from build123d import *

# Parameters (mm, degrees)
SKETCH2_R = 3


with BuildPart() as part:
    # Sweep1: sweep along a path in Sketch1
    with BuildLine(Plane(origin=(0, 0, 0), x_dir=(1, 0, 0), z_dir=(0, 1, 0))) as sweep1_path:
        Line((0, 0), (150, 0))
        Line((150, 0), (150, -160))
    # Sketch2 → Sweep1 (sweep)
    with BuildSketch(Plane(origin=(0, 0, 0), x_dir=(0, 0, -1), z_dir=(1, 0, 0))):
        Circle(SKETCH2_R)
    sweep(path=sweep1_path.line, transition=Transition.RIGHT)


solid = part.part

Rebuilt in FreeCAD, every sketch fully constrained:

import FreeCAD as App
import Part
import Sketcher

doc = App.newDocument("Part")
body = doc.addObject("PartDesign::Body", "Body")

# Sketch on YZ plane
sketch1 = body.newObject("Sketcher::SketchObject", "Sketch")
sketch1.AttachmentSupport = (doc.getObject("YZ_Plane"), [""])
sketch1.MapMode = "FlatFace"
sketch1.addGeometry(Part.Circle(App.Vector(0, 0, 0), App.Vector(0, 0, 1), 3), False)
sketch1.addConstraint([
    Sketcher.Constraint("Coincident", 0, 3, -1, 1),
    Sketcher.Constraint("Diameter", 0, 6.0),
])

# Sketch on XZ plane
sketch2 = body.newObject("Sketcher::SketchObject", "Sketch001")
sketch2.AttachmentSupport = (doc.getObject("XZ_Plane"), [""])
sketch2.MapMode = "FlatFace"
sketch2.addGeometry([
    Part.LineSegment(App.Vector(0, 0, 0), App.Vector(150, 0, 0)),
    Part.LineSegment(App.Vector(150, 0, 0), App.Vector(150, 160, 0)),
], False)
sketch2.addConstraint([
    Sketcher.Constraint("Coincident", 0, 2, 1, 1),
    Sketcher.Constraint("Horizontal", 0),
    Sketcher.Constraint("Vertical", 1),
    Sketcher.Constraint("Coincident", 0, 1, -1, 1),
    Sketcher.Constraint("DistanceX", 0, 1, 0, 2, 150.0),
    Sketcher.Constraint("DistanceY", 1, 1, 1, 2, 160.0),
])
doc.recompute()

additivepipe = body.newObject("PartDesign::AdditivePipe", "AdditivePipe")
additivepipe.Profile = sketch1
additivepipe.Spine = (sketch2, ["Edge1", "Edge2"])
additivepipe.Transition = "Right corner"

doc.recompute()
